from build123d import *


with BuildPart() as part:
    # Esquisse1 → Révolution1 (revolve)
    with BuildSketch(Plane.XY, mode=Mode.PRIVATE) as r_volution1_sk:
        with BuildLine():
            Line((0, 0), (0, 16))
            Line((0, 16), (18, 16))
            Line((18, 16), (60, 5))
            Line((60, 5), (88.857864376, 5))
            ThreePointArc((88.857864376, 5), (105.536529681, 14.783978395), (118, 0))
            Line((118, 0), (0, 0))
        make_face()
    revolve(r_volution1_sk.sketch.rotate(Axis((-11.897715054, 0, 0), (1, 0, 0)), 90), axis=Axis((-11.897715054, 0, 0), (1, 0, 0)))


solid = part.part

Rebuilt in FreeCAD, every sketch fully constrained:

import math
import FreeCAD as App
import Part
import Sketcher
Q = App.Units.Quantity

doc = App.newDocument("Part")
params = doc.addObject("Spreadsheet::Sheet", "Params")
for row, (alias, value) in enumerate([
    ("sketch1_radius", "15 mm"),
    ("sketch1_width", "118 mm"),
    ("sketch1_width2", "18 mm"),
    ("sketch1_height", "16 mm"),
    ("revolution_angle", "360 deg"),
], start=1):
    params.set(f"A{row}", alias)
    params.set(f"B{row}", "=" + value)
    params.setAlias(f"B{row}", alias)

body = doc.addObject("PartDesign::Body", "Body")

sketch1 = body.newObject("Sketcher::SketchObject", "Sketch")
sketch1.AttachmentSupport = (doc.getObject("XY_Plane"), [""])
sketch1.MapMode = "FlatFace"
sketch1.addGeometry([
    Part.LineSegment(App.Vector(0, 16, 0), App.Vector(0, 0, 0)),
    Part.LineSegment(App.Vector(0, 0, 0), App.Vector(118, 0, 0)),
    Part.ArcOfCircle(Part.Circle(App.Vector(103, 0, 0), App.Vector(0, 0, 1), 15), math.radians(0), math.radians(160.528779)),
    Part.LineSegment(App.Vector(88.857864, 5, 0), App.Vector(60, 5, 0)),
    Part.LineSegment(App.Vector(60, 5, 0), App.Vector(18, 16, 0)),
    Part.LineSegment(App.Vector(18, 16, 0), App.Vector(0, 16, 0)),
], False)
sketch1.addConstraint([
    Sketcher.Constraint("Coincident", 0, 2, 1, 1),
    Sketcher.Constraint("Coincident", 1, 2, 2, 1),
    Sketcher.Constraint("Coincident", 2, 2, 3, 1),
    Sketcher.Constraint("Coincident", 3, 2, 4, 1),
    Sketcher.Constraint("Coincident", 4, 2, 5, 1),
    Sketcher.Constraint("Coincident", 5, 2, 0, 1),
    Sketcher.Constraint("Vertical", 0),
    Sketcher.Constraint("Horizontal", 1),
    Sketcher.Constraint("Horizontal", 3),
    Sketcher.Constraint("Horizontal", 5),
    Sketcher.Constraint("Coincident", 0, 2, -1, 1),
    Sketcher.Constraint("PointOnObject", 2, 3, -1),
    Sketcher.Constraint("Radius", 2, Q("15 mm")),
    Sketcher.Constraint("DistanceX", 1, 1, 1, 2, Q("118 mm")),
    Sketcher.Constraint("DistanceX", 5, 2, 5, 1, Q("18 mm")),
    Sketcher.Constraint("DistanceY", 0, 2, 0, 1, Q("16 mm")),
    Sketcher.Constraint("DistanceY", -1, 1, 2, 2, Q("5 mm")),
    Sketcher.Constraint("DistanceX", -1, 1, 3, 2, Q("60 mm")),
])
sketch1.setExpression("Constraints[12]", "Params.sketch1_radius")
sketch1.setExpression("Constraints[13]", "Params.sketch1_width")
sketch1.setExpression("Constraints[14]", "Params.sketch1_width2")
sketch1.setExpression("Constraints[15]", "Params.sketch1_height")
revolution = body.newObject("PartDesign::Revolution", "Revolution")
revolution.Profile = sketch1
revolution.ReferenceAxis = (sketch1, ["H_Axis"])
revolution.setExpression("Angle", "Params.revolution_angle")

doc.recompute()
